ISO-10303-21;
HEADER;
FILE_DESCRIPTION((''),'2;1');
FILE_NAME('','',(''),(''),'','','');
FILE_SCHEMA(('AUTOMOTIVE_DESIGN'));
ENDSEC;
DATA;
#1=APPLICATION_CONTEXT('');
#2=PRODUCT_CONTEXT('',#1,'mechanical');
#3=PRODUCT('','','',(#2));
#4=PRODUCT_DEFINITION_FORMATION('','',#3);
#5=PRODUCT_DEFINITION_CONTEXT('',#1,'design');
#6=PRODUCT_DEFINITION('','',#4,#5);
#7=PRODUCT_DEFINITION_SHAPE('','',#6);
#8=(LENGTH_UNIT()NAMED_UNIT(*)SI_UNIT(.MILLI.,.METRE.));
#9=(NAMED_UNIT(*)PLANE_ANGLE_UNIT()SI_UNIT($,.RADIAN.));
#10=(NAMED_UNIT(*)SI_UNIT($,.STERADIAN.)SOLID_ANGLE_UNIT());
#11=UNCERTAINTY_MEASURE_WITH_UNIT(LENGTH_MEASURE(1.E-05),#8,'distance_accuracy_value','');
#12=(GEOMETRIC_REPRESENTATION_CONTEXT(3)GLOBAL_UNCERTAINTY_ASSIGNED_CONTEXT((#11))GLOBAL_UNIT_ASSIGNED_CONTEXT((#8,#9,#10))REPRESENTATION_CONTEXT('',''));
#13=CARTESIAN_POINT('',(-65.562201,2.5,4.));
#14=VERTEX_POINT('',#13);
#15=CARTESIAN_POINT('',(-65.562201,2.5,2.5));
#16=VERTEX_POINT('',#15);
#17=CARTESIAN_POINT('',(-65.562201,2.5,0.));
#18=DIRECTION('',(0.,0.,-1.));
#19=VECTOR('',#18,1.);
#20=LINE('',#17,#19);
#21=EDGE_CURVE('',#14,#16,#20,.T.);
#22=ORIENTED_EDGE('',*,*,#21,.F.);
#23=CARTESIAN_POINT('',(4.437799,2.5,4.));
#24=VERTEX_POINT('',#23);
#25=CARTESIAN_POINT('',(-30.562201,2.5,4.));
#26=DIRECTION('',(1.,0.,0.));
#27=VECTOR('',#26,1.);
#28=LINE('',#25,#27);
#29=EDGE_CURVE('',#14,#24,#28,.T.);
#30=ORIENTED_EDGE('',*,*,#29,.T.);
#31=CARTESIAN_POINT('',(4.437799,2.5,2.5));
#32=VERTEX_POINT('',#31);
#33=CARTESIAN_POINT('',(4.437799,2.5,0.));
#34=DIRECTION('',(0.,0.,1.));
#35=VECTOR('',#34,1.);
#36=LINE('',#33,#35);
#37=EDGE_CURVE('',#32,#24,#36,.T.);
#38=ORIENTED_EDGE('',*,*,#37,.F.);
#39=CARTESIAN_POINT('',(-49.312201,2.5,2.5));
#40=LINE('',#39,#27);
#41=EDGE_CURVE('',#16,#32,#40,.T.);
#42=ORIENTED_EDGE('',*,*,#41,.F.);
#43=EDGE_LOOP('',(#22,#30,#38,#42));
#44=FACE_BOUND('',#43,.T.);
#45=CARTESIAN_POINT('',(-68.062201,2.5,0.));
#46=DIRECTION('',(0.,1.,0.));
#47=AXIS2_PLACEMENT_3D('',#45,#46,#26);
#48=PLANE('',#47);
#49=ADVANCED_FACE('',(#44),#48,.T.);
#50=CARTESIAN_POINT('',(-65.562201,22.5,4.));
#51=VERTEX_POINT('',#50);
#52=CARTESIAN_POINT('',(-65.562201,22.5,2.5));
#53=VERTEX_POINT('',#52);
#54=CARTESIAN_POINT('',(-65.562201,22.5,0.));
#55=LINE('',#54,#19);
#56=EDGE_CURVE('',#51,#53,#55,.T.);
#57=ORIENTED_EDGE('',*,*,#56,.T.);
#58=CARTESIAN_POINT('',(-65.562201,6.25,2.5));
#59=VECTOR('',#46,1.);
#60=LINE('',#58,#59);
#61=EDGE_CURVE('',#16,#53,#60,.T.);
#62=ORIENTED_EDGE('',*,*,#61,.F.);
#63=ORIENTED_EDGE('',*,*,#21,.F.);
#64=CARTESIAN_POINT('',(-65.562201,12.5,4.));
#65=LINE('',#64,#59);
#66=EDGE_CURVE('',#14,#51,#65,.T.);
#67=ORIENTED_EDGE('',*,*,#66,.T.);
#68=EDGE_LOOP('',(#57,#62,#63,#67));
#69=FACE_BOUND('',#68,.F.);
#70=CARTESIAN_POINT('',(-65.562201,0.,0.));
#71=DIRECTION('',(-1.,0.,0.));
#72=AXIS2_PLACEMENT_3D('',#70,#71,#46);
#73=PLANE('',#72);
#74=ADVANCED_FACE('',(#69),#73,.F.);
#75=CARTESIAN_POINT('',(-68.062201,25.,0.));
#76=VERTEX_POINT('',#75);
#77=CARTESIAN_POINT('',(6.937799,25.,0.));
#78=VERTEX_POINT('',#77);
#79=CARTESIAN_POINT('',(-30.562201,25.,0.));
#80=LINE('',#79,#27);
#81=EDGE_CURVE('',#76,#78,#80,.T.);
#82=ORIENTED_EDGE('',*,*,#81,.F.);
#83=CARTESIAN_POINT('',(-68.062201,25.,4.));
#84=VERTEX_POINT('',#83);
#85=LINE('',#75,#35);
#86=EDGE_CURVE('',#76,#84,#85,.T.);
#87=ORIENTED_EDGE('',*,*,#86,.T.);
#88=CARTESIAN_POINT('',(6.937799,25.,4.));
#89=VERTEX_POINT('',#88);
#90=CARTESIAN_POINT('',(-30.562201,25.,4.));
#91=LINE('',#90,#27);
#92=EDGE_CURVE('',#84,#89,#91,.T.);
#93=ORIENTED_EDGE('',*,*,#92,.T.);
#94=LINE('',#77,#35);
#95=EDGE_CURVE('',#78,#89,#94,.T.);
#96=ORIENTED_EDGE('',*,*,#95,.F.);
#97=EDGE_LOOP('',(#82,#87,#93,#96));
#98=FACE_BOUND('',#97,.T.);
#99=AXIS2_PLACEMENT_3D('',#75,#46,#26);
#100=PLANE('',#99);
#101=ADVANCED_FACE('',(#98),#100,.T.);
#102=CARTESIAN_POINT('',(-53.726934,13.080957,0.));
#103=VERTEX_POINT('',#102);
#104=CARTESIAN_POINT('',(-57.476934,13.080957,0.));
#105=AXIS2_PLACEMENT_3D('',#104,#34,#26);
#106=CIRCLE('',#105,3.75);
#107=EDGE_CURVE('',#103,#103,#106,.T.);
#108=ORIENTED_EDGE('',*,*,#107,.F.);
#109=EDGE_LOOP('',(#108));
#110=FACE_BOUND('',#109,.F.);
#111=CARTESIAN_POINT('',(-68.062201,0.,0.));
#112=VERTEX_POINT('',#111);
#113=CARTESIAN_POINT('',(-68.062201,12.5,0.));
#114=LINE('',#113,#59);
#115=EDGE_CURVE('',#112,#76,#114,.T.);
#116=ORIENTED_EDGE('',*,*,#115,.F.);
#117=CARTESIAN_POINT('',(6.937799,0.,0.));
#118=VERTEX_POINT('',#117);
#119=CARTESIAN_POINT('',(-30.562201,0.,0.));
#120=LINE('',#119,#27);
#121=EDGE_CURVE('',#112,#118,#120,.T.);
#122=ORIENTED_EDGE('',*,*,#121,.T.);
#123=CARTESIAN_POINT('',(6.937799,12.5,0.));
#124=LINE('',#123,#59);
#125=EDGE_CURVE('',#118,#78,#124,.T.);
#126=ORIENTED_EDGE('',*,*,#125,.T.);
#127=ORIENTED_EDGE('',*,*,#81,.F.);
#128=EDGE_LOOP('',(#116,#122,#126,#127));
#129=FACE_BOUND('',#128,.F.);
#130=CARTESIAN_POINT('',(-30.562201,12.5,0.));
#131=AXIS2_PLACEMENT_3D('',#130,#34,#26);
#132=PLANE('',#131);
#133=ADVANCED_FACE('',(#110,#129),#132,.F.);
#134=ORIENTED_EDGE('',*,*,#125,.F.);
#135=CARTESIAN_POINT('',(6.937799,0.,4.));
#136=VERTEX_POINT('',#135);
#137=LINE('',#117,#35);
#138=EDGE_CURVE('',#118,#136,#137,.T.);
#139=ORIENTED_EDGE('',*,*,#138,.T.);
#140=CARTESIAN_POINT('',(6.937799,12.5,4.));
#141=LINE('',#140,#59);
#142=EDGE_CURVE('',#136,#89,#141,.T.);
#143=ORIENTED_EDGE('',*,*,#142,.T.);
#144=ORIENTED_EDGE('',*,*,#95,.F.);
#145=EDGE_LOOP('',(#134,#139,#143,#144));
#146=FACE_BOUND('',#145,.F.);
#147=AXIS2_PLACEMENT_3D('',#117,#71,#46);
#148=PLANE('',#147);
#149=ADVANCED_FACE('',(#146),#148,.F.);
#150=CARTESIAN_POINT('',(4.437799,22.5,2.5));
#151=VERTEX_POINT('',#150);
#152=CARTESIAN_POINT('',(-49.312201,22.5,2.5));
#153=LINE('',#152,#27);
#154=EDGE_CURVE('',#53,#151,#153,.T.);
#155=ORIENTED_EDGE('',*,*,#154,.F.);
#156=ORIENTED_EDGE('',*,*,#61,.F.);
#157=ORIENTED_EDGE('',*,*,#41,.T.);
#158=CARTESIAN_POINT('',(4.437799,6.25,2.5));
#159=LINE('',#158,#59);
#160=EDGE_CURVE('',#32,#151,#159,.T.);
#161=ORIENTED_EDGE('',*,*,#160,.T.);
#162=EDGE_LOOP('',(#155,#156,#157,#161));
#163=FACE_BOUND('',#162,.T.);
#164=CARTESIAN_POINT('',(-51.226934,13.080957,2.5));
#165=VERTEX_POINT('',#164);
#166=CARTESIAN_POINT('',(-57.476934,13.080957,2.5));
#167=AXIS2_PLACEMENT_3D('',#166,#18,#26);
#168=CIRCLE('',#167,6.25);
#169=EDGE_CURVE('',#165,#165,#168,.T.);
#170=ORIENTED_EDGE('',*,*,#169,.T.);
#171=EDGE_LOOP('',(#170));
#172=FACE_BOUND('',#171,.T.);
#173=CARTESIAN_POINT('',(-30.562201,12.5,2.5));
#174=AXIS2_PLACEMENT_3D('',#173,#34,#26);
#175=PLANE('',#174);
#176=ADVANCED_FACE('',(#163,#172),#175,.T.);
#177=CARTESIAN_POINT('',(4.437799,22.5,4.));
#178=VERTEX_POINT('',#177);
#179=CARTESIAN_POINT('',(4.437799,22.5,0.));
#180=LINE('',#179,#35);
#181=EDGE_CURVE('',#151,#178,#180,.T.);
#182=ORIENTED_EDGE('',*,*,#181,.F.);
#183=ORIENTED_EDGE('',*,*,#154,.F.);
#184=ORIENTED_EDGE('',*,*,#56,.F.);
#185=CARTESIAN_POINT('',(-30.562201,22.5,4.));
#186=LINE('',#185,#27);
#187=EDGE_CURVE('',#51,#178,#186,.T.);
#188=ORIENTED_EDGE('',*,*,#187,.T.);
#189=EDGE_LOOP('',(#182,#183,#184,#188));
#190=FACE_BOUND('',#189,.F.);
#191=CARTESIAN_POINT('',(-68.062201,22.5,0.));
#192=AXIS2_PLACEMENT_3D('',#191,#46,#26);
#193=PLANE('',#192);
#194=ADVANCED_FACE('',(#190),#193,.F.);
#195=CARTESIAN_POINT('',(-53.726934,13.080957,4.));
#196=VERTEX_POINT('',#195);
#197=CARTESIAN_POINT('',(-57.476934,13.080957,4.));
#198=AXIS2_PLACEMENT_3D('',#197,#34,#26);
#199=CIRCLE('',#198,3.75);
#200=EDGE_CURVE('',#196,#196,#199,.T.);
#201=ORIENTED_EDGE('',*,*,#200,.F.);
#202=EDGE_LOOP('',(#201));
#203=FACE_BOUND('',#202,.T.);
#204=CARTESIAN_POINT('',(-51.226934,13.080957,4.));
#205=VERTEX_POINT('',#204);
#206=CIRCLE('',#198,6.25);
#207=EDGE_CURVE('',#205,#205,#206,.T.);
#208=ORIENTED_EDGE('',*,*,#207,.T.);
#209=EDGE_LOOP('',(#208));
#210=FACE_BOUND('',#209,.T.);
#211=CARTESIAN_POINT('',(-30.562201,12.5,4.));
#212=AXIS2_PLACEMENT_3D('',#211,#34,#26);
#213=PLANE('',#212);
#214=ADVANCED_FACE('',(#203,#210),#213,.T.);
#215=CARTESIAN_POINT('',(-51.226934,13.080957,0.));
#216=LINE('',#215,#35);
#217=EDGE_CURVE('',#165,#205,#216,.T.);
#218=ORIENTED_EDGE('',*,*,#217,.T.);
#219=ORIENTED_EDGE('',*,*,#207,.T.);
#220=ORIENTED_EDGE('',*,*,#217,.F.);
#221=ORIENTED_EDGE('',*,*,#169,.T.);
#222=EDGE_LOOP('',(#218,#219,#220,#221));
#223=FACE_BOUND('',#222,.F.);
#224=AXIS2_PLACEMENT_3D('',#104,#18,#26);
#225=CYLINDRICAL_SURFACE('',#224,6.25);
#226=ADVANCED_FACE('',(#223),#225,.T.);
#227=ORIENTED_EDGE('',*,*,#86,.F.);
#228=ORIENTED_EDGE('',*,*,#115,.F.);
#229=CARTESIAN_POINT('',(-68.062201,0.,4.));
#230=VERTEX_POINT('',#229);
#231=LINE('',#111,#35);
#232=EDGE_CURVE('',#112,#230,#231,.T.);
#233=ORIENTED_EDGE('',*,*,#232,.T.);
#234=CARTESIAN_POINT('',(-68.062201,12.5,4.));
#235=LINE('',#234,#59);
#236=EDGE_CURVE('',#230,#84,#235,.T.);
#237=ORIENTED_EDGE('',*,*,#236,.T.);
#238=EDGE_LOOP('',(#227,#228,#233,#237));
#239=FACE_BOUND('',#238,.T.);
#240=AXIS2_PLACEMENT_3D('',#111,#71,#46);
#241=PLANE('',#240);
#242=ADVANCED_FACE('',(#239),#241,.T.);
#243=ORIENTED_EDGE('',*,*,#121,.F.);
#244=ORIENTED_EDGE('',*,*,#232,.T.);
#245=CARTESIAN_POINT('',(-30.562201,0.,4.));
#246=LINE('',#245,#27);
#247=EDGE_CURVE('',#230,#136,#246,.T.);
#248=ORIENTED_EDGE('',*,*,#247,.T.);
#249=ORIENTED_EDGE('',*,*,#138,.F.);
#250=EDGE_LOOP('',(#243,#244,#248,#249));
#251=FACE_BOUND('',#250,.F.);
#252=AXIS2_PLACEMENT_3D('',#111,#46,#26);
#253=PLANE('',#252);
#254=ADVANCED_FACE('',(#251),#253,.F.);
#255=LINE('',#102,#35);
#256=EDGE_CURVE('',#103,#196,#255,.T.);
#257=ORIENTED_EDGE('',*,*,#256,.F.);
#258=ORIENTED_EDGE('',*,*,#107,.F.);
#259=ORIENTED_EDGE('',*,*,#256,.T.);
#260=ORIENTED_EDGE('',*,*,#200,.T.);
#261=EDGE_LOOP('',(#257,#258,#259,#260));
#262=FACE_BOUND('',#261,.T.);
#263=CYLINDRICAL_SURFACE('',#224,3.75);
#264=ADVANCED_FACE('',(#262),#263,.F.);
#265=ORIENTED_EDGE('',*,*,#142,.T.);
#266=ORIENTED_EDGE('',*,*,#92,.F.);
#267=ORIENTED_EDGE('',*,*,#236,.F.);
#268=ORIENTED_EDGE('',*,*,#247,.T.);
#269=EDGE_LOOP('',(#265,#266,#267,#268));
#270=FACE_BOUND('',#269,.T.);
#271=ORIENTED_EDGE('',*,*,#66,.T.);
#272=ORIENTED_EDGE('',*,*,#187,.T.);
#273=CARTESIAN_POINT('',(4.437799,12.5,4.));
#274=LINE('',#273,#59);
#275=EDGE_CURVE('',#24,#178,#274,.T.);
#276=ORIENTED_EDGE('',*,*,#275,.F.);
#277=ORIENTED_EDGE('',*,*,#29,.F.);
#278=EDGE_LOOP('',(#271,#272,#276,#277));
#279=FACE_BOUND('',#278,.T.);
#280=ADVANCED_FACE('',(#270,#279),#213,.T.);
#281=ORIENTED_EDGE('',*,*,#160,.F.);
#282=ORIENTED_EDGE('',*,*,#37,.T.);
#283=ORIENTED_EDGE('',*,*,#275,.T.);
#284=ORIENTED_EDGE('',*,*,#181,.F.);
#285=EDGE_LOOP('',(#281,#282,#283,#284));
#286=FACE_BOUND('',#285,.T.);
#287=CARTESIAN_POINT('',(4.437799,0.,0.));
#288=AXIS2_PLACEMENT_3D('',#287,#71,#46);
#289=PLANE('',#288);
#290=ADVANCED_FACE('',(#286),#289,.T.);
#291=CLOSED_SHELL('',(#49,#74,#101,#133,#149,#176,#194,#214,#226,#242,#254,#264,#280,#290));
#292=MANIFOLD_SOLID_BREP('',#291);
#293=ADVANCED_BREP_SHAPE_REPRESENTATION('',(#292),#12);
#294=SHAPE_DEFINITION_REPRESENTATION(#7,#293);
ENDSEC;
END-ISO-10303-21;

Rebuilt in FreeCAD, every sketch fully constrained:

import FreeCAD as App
import Part
import Sketcher

V = App.Vector
Q = App.Units.Quantity


def faces_at(feature, points):
    """Names of the faces that lie closest to the given points."""
    faces = feature.Shape.Faces
    near = lambda p: min(range(len(faces)), key=lambda i: faces[i].distToShape(Part.Vertex(*p))[0])
    return sorted({f"Face{near(p) + 1}" for p in points})


def add_polygon(sketch, points):
    """Adds a closed chain of lines whose ends are joined by coincident constraints."""
    first, n = sketch.GeometryCount, len(points)
    for a, b in zip(points, points[1:] + points[:1]):
        sketch.addGeometry(Part.LineSegment(App.Vector(*a, 0), App.Vector(*b, 0)), False)
    for i in range(n):
        sketch.addConstraint(Sketcher.Constraint("Coincident", first + i, 2, first + (i + 1) % n, 1))

doc = App.newDocument("Part")
body = doc.addObject("PartDesign::Body", "Body")

# Sketch on XY plane
sketch1 = body.newObject("Sketcher::SketchObject", "Sketch")
sketch1.AttachmentSupport = (doc.getObject("XY_Plane"), [""])
sketch1.MapMode = "FlatFace"
add_polygon(sketch1, [(-68.1, 25), (-68.1, 0), (6.9, 0), (6.9, 25)])  # lines 0-3
sketch1.addGeometry(Part.Circle(V(-57.5, 13.1, 0), V(0, 0, 1), 3.8), False)  # 4
sketch1.addConstraint([
    Sketcher.Constraint("Vertical", 0),
    Sketcher.Constraint("Horizontal", 1),
    Sketcher.Constraint("Vertical", 2),
    Sketcher.Constraint("Horizontal", 3),
    Sketcher.Constraint("PointOnObject", 0, 2, -1),
    Sketcher.Constraint("Diameter", 4, Q("7.5 mm")),
    Sketcher.Constraint("DistanceX", 1, 1, 1, 2, Q("75 mm")),
    Sketcher.Constraint("DistanceY", 0, 2, 0, 1, Q("25 mm")),
    Sketcher.Constraint("DistanceX", 0, 2, -1, 1, Q("68.062201 mm")),
    Sketcher.Constraint("DistanceX", 4, 3, -1, 1, Q("57.476934 mm")),
    Sketcher.Constraint("DistanceY", -1, 1, 4, 3, Q("13.080957 mm")),
])
pad1 = body.newObject("PartDesign::Pad", "Pad")
pad1.Profile = sketch1
pad1.Length = 4
doc.recompute()

thickness = body.newObject("PartDesign::Thickness", "Thickness")
thickness.Base = (pad1, faces_at(pad1, [(-30.562, 12.5, 4)]))
thickness.Value = 2.5
thickness.Reversed = True
thickness.Join = "Arc"

doc.recompute()
